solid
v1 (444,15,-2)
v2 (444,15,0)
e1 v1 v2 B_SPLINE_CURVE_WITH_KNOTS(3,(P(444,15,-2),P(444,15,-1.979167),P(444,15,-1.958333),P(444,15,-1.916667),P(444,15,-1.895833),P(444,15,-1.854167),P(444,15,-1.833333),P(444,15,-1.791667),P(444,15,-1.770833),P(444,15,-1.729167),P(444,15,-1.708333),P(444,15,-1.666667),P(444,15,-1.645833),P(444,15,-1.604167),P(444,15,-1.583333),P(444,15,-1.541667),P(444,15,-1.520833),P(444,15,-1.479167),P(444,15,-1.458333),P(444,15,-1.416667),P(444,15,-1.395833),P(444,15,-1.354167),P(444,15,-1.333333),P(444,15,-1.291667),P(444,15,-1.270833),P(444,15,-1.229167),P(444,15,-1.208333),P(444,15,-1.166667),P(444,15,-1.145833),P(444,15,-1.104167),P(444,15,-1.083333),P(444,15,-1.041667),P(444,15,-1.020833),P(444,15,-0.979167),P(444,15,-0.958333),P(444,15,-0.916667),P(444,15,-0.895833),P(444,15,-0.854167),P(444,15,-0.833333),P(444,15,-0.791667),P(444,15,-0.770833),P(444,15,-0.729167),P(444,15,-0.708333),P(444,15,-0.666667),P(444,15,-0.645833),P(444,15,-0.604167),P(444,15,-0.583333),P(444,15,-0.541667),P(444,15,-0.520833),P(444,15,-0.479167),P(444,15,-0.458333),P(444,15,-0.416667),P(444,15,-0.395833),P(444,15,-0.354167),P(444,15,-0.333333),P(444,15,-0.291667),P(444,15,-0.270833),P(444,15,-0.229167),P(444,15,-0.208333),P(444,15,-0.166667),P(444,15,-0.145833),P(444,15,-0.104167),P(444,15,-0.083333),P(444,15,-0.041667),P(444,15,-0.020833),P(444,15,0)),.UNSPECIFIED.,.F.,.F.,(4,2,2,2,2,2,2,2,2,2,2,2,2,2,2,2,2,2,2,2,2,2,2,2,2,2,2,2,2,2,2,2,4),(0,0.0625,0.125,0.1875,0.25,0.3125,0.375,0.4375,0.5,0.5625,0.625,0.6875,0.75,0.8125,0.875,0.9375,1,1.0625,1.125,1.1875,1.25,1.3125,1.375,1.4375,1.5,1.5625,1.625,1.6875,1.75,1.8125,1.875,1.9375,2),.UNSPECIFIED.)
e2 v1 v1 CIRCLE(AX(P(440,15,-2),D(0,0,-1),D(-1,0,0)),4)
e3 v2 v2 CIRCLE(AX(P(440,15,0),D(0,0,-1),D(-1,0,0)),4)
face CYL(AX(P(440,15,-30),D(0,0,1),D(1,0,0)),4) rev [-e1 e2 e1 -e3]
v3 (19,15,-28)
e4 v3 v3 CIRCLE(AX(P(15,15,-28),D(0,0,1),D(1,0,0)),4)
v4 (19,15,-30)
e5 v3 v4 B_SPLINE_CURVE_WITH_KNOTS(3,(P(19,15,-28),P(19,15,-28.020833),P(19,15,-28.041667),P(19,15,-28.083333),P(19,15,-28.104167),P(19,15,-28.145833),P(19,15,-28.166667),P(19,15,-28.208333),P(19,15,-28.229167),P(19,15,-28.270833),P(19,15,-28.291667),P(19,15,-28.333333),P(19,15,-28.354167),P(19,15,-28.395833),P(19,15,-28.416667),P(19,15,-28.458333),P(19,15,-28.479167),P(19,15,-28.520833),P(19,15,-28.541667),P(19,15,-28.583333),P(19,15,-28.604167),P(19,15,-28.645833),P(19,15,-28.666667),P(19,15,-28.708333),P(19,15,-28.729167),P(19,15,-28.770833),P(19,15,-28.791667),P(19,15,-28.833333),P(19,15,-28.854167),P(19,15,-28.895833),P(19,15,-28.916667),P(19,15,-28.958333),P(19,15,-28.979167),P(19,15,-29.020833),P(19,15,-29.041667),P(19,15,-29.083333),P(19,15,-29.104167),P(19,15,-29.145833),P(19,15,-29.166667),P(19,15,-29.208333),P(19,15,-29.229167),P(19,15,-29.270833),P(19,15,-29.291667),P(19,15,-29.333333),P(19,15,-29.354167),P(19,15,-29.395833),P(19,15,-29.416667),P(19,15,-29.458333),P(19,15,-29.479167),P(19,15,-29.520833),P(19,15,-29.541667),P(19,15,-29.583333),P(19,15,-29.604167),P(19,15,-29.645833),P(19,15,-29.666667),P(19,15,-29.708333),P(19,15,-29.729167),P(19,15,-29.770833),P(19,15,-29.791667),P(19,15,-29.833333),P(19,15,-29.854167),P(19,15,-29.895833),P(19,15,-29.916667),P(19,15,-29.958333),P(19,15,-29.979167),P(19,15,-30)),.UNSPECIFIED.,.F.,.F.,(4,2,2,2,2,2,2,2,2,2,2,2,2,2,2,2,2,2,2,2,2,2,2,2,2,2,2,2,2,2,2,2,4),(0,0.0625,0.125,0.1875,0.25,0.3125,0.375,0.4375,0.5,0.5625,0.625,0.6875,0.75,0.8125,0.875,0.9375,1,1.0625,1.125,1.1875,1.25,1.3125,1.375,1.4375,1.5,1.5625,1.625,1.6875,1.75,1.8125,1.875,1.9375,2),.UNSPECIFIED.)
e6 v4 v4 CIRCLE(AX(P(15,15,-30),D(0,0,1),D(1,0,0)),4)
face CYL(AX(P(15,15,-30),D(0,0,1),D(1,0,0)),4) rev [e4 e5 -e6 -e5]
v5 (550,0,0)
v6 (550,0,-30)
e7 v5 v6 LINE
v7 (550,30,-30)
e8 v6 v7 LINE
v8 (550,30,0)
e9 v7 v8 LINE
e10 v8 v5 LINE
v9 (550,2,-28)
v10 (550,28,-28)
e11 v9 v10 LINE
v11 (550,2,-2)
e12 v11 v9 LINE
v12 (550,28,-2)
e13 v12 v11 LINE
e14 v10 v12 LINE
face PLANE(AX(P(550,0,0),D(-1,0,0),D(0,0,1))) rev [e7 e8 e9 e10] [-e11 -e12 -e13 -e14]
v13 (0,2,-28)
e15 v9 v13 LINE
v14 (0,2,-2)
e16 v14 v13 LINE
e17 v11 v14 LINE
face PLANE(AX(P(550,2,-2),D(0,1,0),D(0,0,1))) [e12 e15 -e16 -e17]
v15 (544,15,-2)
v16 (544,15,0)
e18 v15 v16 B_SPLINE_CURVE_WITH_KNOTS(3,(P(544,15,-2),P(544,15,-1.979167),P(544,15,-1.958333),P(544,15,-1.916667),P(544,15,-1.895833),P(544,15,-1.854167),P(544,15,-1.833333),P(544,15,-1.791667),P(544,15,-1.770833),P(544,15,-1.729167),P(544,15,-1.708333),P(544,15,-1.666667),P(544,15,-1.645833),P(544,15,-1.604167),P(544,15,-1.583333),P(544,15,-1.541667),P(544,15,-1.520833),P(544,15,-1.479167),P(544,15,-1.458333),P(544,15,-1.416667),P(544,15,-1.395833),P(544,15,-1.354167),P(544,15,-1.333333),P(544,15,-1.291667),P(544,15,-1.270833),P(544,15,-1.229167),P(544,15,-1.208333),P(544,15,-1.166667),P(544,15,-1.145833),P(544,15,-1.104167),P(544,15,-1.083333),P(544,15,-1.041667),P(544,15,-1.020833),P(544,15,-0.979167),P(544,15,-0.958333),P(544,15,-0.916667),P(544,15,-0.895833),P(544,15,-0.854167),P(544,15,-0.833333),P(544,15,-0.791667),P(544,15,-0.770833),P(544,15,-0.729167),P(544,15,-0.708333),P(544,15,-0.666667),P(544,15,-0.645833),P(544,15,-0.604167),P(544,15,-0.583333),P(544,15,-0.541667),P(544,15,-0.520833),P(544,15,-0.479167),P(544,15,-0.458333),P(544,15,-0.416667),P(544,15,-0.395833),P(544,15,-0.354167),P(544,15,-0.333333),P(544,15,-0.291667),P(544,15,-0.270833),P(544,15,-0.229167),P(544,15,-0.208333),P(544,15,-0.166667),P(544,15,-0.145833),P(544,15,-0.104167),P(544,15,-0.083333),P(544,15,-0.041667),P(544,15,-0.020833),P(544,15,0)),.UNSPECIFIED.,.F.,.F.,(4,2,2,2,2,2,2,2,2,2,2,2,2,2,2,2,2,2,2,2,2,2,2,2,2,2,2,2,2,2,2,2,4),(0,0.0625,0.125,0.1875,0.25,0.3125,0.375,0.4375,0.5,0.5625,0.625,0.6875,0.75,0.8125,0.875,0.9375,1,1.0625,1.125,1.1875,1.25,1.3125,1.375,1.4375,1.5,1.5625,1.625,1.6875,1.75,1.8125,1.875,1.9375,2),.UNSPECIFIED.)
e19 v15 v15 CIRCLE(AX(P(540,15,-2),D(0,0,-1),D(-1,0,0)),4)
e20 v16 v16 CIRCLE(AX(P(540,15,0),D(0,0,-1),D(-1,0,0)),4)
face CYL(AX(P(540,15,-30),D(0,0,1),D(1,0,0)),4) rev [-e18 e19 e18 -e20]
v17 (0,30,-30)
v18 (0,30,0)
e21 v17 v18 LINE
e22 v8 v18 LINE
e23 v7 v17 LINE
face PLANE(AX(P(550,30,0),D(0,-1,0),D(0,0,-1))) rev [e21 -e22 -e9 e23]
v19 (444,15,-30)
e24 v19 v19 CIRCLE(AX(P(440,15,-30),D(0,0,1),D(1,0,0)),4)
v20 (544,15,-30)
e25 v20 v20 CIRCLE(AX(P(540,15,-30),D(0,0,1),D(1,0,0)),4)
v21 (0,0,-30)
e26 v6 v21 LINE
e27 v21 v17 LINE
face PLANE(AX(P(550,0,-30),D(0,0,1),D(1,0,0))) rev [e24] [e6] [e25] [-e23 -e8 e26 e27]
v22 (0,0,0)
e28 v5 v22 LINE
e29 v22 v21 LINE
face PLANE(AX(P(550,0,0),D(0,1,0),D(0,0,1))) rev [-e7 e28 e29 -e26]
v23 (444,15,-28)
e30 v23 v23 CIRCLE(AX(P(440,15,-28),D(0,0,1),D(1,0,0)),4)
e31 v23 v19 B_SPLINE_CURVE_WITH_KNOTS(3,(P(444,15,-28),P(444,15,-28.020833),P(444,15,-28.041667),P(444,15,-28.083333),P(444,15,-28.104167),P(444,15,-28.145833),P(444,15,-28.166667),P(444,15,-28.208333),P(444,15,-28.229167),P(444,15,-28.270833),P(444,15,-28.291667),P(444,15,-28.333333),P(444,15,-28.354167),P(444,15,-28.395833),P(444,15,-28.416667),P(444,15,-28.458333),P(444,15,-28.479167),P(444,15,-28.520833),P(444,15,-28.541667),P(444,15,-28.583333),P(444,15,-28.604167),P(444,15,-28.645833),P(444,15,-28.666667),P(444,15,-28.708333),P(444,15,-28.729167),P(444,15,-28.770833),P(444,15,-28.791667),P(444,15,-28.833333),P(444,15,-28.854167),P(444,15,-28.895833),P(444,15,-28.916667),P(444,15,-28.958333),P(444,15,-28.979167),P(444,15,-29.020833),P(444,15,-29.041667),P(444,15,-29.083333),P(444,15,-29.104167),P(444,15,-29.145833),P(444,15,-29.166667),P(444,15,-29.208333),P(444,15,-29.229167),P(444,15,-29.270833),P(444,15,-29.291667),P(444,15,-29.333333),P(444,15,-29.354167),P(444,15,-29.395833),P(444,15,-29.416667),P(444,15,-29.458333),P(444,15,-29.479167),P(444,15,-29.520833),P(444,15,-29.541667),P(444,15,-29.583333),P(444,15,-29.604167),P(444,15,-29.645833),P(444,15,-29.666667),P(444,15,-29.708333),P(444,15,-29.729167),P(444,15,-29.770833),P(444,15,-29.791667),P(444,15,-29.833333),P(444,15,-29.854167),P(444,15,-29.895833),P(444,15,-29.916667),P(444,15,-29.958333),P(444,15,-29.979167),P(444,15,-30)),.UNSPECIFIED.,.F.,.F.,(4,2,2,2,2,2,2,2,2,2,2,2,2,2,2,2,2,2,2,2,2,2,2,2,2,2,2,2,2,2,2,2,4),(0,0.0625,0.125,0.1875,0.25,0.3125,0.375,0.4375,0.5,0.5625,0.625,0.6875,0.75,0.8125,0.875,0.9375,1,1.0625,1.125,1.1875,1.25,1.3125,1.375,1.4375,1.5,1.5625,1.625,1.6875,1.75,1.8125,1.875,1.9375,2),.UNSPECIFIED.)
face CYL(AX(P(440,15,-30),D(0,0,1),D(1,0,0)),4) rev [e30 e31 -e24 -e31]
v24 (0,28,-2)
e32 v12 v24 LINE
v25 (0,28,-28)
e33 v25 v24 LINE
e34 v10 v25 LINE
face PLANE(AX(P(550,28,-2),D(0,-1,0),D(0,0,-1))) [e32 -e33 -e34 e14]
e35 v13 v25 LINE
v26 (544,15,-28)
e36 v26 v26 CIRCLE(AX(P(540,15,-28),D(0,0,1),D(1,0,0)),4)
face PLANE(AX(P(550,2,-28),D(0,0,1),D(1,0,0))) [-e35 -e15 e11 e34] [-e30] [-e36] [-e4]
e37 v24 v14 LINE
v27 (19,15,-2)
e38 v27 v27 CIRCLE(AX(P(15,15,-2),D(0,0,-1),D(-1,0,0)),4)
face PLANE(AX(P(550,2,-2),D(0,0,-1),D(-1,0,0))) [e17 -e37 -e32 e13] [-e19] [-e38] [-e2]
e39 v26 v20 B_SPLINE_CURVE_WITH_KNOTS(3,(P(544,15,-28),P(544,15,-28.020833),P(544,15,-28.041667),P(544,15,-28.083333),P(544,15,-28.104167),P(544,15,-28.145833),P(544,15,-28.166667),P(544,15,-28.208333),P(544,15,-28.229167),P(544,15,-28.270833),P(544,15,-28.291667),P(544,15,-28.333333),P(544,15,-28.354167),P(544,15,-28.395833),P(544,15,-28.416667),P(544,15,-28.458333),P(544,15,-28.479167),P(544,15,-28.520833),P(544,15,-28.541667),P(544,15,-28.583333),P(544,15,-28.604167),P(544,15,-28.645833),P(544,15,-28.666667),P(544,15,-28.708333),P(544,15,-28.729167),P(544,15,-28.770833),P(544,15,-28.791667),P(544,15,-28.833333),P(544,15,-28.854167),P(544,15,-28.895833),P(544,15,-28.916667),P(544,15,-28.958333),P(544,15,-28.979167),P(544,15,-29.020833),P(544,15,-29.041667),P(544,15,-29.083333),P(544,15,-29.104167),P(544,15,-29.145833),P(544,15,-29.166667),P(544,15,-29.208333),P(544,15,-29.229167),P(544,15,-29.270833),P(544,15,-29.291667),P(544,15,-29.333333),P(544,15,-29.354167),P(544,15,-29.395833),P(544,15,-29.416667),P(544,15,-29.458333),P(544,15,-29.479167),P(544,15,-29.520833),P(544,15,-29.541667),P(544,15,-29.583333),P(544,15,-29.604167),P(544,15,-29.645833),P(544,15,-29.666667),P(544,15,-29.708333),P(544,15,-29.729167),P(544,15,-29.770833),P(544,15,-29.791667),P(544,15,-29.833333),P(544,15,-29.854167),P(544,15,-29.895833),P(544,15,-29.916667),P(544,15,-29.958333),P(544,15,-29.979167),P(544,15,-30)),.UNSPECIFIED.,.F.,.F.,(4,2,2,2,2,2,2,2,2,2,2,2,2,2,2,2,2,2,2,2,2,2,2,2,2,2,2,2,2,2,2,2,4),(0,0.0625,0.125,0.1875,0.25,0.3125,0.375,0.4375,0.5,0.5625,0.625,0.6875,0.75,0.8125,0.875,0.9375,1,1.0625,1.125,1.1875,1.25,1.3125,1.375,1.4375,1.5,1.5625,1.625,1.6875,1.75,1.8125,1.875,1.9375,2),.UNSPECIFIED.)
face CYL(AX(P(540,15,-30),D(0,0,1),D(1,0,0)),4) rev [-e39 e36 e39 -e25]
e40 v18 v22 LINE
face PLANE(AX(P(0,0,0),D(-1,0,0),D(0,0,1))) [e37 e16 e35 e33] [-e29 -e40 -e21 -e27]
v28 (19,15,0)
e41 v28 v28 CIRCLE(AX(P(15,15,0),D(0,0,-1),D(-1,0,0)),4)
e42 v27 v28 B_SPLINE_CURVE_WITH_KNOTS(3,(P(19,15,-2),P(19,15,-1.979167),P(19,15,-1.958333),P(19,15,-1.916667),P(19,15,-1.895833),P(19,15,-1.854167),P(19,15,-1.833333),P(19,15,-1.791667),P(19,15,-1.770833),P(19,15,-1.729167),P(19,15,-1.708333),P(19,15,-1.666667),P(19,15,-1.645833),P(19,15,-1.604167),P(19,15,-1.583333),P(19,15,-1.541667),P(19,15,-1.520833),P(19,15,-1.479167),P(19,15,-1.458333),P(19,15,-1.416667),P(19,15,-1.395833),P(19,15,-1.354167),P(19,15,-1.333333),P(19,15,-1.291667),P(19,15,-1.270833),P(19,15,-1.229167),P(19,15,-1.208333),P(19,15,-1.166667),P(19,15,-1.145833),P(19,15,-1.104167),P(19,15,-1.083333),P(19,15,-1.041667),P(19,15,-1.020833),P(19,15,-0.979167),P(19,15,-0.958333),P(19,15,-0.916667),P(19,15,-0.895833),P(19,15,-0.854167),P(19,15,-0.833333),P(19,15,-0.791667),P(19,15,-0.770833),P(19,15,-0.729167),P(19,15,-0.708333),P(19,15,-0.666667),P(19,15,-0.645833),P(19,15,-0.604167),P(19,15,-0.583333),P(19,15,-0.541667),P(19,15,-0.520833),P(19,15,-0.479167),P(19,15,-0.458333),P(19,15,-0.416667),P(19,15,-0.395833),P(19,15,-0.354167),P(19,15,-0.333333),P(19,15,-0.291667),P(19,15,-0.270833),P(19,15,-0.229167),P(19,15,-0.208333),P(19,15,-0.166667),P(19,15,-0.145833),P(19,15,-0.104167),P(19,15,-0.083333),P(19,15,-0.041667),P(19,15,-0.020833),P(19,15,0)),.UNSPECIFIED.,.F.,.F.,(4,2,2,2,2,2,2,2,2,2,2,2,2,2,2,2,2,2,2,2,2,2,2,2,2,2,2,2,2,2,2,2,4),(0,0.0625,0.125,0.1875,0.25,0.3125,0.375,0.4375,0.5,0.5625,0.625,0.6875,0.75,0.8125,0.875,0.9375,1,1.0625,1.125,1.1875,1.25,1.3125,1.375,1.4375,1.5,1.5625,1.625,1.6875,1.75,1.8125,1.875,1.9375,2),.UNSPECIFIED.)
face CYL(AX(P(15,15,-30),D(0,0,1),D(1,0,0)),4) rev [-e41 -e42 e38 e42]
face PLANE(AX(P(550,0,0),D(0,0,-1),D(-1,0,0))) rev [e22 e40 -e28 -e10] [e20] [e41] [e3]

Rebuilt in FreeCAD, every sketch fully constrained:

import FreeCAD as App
import Part
import Sketcher
from FreeCAD import Vector

doc = App.newDocument("Part")
body = doc.addObject("PartDesign::Body", "Body")

# Sketch on YZ plane
sketch1 = body.newObject("Sketcher::SketchObject", "Sketch")
sketch1.AttachmentSupport = (doc.getObject("YZ_Plane"), [""])
sketch1.MapMode = "FlatFace"
sketch1.addGeometry([
    Part.LineSegment(Vector(30, 0, 0), Vector(0, 0, 0)),  # 0
    Part.LineSegment(Vector(0, 0, 0), Vector(0, -30, 0)),  # 1
    Part.LineSegment(Vector(0, -30, 0), Vector(30, -30, 0)),  # 2
    Part.LineSegment(Vector(30, -30, 0), Vector(30, 0, 0)),  # 3
    Part.LineSegment(Vector(2, -28, 0), Vector(2, -2, 0)),  # 4
    Part.LineSegment(Vector(2, -2, 0), Vector(28, -2, 0)),  # 5
    Part.LineSegment(Vector(28, -2, 0), Vector(28, -28, 0)),  # 6
    Part.LineSegment(Vector(28, -28, 0), Vector(2, -28, 0)),  # 7
], False)
sketch1.addConstraint([
    Sketcher.Constraint("Coincident", 0, 2, 1, 1),
    Sketcher.Constraint("Coincident", 1, 2, 2, 1),
    Sketcher.Constraint("Coincident", 2, 2, 3, 1),
    Sketcher.Constraint("Coincident", 3, 2, 0, 1),
    Sketcher.Constraint("Coincident", 4, 2, 5, 1),
    Sketcher.Constraint("Coincident", 5, 2, 6, 1),
    Sketcher.Constraint("Coincident", 6, 2, 7, 1),
    Sketcher.Constraint("Coincident", 7, 2, 4, 1),
    Sketcher.Constraint("Horizontal", 0),
    Sketcher.Constraint("Vertical", 1),
    Sketcher.Constraint("Horizontal", 2),
    Sketcher.Constraint("Vertical", 3),
    Sketcher.Constraint("Vertical", 4),
    Sketcher.Constraint("Horizontal", 5),
    Sketcher.Constraint("Vertical", 6),
    Sketcher.Constraint("Horizontal", 7),
    Sketcher.Constraint("Coincident", 0, 2, -1, 1),
    Sketcher.Constraint("Equal", 2, 1),
    Sketcher.Constraint("Equal", 7, 4),
    Sketcher.Constraint("DistanceX", 0, 2, 0, 1, 30.0),
    Sketcher.Constraint("DistanceX", 5, 1, 5, 2, 26.0),
    Sketcher.Constraint("DistanceX", -1, 1, 4, 2, 2.0),
    Sketcher.Constraint("DistanceY", 4, 2, -1, 1, 2.0),
])
pad1 = body.newObject("PartDesign::Pad", "Pad")
pad1.Profile = sketch1
pad1.Length = 550

# Sketch on XY plane
sketch2 = body.newObject("Sketcher::SketchObject", "Sketch001")
sketch2.AttachmentSupport = (doc.getObject("XY_Plane"), [""])
sketch2.MapMode = "FlatFace"
sketch2.addGeometry([
    Part.Circle(Vector(15, 15, 0), Vector(0, 0, 1), 4),
    Part.Circle(Vector(440, 15, 0), Vector(0, 0, 1), 4),
    Part.Circle(Vector(540, 15, 0), Vector(0, 0, 1), 4),
], False)
sketch2.addConstraint([
    Sketcher.Constraint("Equal", 0, 1),
    Sketcher.Constraint("Equal", 1, 2),
    Sketcher.Constraint("Horizontal", 0, 3, 1, 3),
    Sketcher.Constraint("Horizontal", 1, 3, 2, 3),
    Sketcher.Constraint("Diameter", 0, 8.0),
    Sketcher.Constraint("DistanceX", -1, 1, 0, 3, 15.0),
    Sketcher.Constraint("DistanceY", -1, 1, 0, 3, 15.0),
    Sketcher.Constraint("DistanceX", -1, 1, 1, 3, 440.0),
    Sketcher.Constraint("DistanceX", -1, 1, 2, 3, 540.0),
])
pocket1 = body.newObject("PartDesign::Pocket", "Pocket")
pocket1.Profile = sketch2
pocket1.Type = "ThroughAll"
pocket1.Midplane = True

doc.recompute()
